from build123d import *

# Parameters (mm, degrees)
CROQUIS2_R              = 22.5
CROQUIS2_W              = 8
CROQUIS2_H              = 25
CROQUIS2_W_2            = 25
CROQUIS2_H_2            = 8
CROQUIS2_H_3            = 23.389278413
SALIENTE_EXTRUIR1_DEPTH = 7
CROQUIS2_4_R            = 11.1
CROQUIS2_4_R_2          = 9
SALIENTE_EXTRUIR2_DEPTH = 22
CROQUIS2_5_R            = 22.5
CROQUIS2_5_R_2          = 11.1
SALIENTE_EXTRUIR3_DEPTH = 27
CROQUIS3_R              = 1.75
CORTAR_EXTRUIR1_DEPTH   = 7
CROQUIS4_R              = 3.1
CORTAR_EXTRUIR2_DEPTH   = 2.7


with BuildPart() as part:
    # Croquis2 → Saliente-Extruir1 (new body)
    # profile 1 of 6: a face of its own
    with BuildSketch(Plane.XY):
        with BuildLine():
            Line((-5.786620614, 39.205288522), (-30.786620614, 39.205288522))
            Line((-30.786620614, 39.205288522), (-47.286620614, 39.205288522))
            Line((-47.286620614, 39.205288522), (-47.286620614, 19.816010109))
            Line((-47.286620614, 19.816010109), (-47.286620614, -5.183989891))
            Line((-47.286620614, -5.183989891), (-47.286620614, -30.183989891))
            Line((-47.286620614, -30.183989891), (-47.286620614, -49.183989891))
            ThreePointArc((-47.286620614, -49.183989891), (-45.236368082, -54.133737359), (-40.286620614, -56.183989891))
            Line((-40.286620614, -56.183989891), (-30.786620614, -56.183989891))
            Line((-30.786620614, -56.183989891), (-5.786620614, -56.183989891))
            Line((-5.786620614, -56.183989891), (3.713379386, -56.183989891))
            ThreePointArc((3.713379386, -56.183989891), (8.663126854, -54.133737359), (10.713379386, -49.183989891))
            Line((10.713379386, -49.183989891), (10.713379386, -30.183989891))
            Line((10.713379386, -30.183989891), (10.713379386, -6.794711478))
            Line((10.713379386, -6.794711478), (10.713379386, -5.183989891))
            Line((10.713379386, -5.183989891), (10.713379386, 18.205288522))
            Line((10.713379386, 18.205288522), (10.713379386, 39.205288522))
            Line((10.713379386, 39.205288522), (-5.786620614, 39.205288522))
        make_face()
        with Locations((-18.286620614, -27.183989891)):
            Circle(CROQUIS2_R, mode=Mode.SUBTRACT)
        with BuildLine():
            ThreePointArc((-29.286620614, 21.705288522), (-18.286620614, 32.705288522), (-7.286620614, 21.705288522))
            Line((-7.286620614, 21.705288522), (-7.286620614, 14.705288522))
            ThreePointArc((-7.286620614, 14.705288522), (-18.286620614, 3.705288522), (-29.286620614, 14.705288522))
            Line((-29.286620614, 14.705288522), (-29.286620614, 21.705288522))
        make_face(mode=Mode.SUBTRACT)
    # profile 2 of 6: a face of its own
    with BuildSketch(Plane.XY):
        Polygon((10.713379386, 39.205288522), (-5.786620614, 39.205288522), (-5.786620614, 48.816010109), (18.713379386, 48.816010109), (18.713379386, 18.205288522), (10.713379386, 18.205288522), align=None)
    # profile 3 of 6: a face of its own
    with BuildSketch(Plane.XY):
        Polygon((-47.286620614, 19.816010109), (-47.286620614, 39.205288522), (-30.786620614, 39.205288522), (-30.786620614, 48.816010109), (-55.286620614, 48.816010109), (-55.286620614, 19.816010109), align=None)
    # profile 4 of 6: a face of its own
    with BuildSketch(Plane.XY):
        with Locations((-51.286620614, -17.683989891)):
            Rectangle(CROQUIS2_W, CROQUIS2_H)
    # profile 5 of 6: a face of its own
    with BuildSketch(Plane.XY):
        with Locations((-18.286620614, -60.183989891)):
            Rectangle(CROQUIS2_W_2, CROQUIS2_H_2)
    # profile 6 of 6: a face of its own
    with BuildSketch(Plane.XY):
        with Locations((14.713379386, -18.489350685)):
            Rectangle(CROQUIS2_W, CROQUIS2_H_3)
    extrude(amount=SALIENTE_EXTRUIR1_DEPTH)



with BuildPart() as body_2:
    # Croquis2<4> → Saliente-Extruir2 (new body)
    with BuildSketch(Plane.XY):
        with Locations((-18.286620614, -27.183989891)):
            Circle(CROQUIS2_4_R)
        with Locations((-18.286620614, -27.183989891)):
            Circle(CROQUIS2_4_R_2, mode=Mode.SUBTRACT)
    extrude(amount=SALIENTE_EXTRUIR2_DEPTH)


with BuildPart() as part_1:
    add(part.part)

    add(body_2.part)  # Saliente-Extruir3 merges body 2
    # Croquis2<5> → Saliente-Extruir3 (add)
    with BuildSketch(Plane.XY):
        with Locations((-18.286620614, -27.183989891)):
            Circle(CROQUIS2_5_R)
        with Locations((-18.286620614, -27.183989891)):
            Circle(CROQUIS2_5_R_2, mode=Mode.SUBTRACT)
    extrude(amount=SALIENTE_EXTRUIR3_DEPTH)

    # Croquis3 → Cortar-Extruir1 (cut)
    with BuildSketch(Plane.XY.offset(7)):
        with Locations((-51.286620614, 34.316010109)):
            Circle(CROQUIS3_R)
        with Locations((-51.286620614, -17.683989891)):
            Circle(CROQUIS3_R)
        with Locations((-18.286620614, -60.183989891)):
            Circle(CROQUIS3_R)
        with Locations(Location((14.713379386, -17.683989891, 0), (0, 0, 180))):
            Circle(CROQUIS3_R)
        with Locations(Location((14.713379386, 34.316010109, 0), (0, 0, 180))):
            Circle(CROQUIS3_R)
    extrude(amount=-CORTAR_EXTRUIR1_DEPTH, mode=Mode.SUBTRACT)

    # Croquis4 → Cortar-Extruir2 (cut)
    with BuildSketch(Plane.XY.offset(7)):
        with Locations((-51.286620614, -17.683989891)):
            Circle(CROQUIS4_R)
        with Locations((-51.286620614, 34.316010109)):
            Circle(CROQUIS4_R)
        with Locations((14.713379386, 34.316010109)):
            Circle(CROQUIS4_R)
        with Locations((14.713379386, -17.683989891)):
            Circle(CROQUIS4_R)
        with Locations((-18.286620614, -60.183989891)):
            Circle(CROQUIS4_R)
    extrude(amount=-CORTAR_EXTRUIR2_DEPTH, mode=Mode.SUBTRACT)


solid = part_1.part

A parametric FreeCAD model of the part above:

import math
import FreeCAD as App
import Part
import Sketcher
from FreeCAD import Vector
Q = App.Units.Quantity

doc = App.newDocument("Part")
params = doc.addObject("Spreadsheet::Sheet", "Params")
for row, (alias, value) in enumerate([
    ("sketch1_diameter", "45 mm"),
    ("sketch1_radius", "7 mm"),
    ("sketch1_radius2", "11 mm"),
    ("sketch1_width", "8 mm"),
    ("sketch1_width2", "25 mm"),
    ("pad1_length", "7 mm"),
    ("sketch2_diameter", "18 mm"),
    ("sketch2_diameter2", "22.2 mm"),
    ("pad2_length", "22 mm"),
    ("sketch3_diameter", "45 mm"),
    ("sketch3_diameter2", "22.2 mm"),
    ("pad3_length", "27 mm"),
    ("sketch4_diameter", "3.5 mm"),
    ("pocket1_length", "7 mm"),
    ("sketch5_diameter", "6.2 mm"),
    ("pocket2_length", "2.7 mm"),
], start=1):
    params.set(f"A{row}", alias)
    params.set(f"B{row}", "=" + value)
    params.setAlias(f"B{row}", alias)

body = doc.addObject("PartDesign::Body", "Body")

sketch1 = body.newObject("Sketcher::SketchObject", "Sketch")
sketch1.AttachmentSupport = (doc.getObject("XY_Plane"), [""])
sketch1.MapMode = "FlatFace"
sketch1.addGeometry([
    Part.LineSegment(Vector(-47, 20, 0), Vector(-47, -5, 0)),
    Part.LineSegment(Vector(-47, -5, 0), Vector(-55, -5, 0)),
    Part.LineSegment(Vector(-55, -5, 0), Vector(-55, -30, 0)),
    Part.LineSegment(Vector(-55, -30, 0), Vector(-47, -30, 0)),
    Part.LineSegment(Vector(-47, -30, 0), Vector(-47, -49, 0)),
    Part.ArcOfCircle(Part.Circle(Vector(-40, -49, 0), Vector(0, 0, 1), 7), math.radians(-180), math.radians(-90)),
    Part.LineSegment(Vector(-40, -56, 0), Vector(-31, -56, 0)),
    Part.LineSegment(Vector(-31, -56, 0), Vector(-31, -64, 0)),
    Part.LineSegment(Vector(-31, -64, 0), Vector(-6, -64, 0)),
    Part.LineSegment(Vector(-6, -64, 0), Vector(-6, -56, 0)),
    Part.LineSegment(Vector(-6, -56, 0), Vector(4, -56, 0)),
    Part.ArcOfCircle(Part.Circle(Vector(4, -49, 0), Vector(0, 0, 1), 7), math.radians(-90), math.radians(0)),
    Part.LineSegment(Vector(11, -49, 0), Vector(11, -30, 0)),
    Part.LineSegment(Vector(11, -30, 0), Vector(19, -30, 0)),
    Part.LineSegment(Vector(19, -30, 0), Vector(19, -7, 0)),
    Part.LineSegment(Vector(19, -7, 0), Vector(11, -7, 0)),
    Part.LineSegment(Vector(11, -7, 0), Vector(11, 18, 0)),
    Part.LineSegment(Vector(11, 18, 0), Vector(19, 18, 0)),
    Part.LineSegment(Vector(19, 18, 0), Vector(19, 49, 0)),
    Part.LineSegment(Vector(19, 49, 0), Vector(-6, 49, 0)),
    Part.LineSegment(Vector(-6, 49, 0), Vector(-6, 39, 0)),
    Part.LineSegment(Vector(-6, 39, 0), Vector(-31, 39, 0)),
    Part.LineSegment(Vector(-31, 39, 0), Vector(-31, 49, 0)),
    Part.LineSegment(Vector(-31, 49, 0), Vector(-55, 49, 0)),
    Part.LineSegment(Vector(-55, 49, 0), Vector(-55, 20, 0)),
    Part.LineSegment(Vector(-55, 20, 0), Vector(-47, 20, 0)),
    Part.Circle(Vector(-18, -27, 0), Vector(0, 0, 1), 22),
    Part.LineSegment(Vector(-29, 15, 0), Vector(-29, 22, 0)),
    Part.ArcOfCircle(Part.Circle(Vector(-18, 22, 0), Vector(0, 0, 1), 11), math.radians(0), math.radians(180)),
    Part.LineSegment(Vector(-7, 22, 0), Vector(-7, 15, 0)),
    Part.ArcOfCircle(Part.Circle(Vector(-18, 15, 0), Vector(0, 0, 1), 11), math.radians(180), math.radians(360)),
], False)
sketch1.addConstraint([
    Sketcher.Constraint("Coincident", 0, 2, 1, 1),
    Sketcher.Constraint("Coincident", 1, 2, 2, 1),
    Sketcher.Constraint("Coincident", 2, 2, 3, 1),
    Sketcher.Constraint("Coincident", 3, 2, 4, 1),
    Sketcher.Constraint("Tangent", 4, 2, 5, 1),
    Sketcher.Constraint("Tangent", 5, 2, 6, 1),
    Sketcher.Constraint("Coincident", 6, 2, 7, 1),
    Sketcher.Constraint("Coincident", 7, 2, 8, 1),
    Sketcher.Constraint("Coincident", 8, 2, 9, 1),
    Sketcher.Constraint("Coincident", 9, 2, 10, 1),
    Sketcher.Constraint("Tangent", 10, 2, 11, 1),
    Sketcher.Constraint("Tangent", 11, 2, 12, 1),
    Sketcher.Constraint("Coincident", 12, 2, 13, 1),
    Sketcher.Constraint("Coincident", 13, 2, 14, 1),
    Sketcher.Constraint("Coincident", 14, 2, 15, 1),
    Sketcher.Constraint("Coincident", 15, 2, 16, 1),
    Sketcher.Constraint("Coincident", 16, 2, 17, 1),
    Sketcher.Constraint("Coincident", 17, 2, 18, 1),
    Sketcher.Constraint("Coincident", 18, 2, 19, 1),
    Sketcher.Constraint("Coincident", 19, 2, 20, 1),
    Sketcher.Constraint("Coincident", 20, 2, 21, 1),
    Sketcher.Constraint("Coincident", 21, 2, 22, 1),
    Sketcher.Constraint("Coincident", 22, 2, 23, 1),
    Sketcher.Constraint("Coincident", 23, 2, 24, 1),
    Sketcher.Constraint("Coincident", 24, 2, 25, 1),
    Sketcher.Constraint("Coincident", 25, 2, 0, 1),
    Sketcher.Constraint("Tangent", 27, 2, 28, 2),
    Sketcher.Constraint("Tangent", 28, 1, 29, 1),
    Sketcher.Constraint("Tangent", 29, 2, 30, 2),
    Sketcher.Constraint("Tangent", 30, 1, 27, 1),
    Sketcher.Constraint("Vertical", 0),
    Sketcher.Constraint("Horizontal", 1),
    Sketcher.Constraint("Vertical", 2),
    Sketcher.Constraint("Horizontal", 3),
    Sketcher.Constraint("Vertical", 4),
    Sketcher.Constraint("Horizontal", 6),
    Sketcher.Constraint("Vertical", 7),
    Sketcher.Constraint("Horizontal", 8),
    Sketcher.Constraint("Vertical", 9),
    Sketcher.Constraint("Horizontal", 10),
    Sketcher.Constraint("Vertical", 12),
    Sketcher.Constraint("Horizontal", 13),
    Sketcher.Constraint("Vertical", 14),
    Sketcher.Constraint("Horizontal", 15),
    Sketcher.Constraint("Vertical", 16),
    Sketcher.Constraint("Horizontal", 17),
    Sketcher.Constraint("Vertical", 18),
    Sketcher.Constraint("Horizontal", 19),
    Sketcher.Constraint("Vertical", 20),
    Sketcher.Constraint("Horizontal", 21),
    Sketcher.Constraint("Vertical", 22),
    Sketcher.Constraint("Horizontal", 23),
    Sketcher.Constraint("Vertical", 24),
    Sketcher.Constraint("Horizontal", 25),
    Sketcher.Constraint("Vertical", 27),
    Sketcher.Constraint("Vertical", 29),
    Sketcher.Constraint("Equal", 5, 11),
    Sketcher.Constraint("Horizontal", 5, 3, 11, 3),
    Sketcher.Constraint("Horizontal", 3, 2, 12, 2),
    Sketcher.Constraint("Horizontal", 19, 2, 22, 2),
    Sketcher.Constraint("Vertical", 26, 3, 28, 3),
    Sketcher.Constraint("Vertical", 0, 2, 3, 2),
    Sketcher.Constraint("Vertical", 12, 2, 15, 2),
    Sketcher.Constraint("Vertical", 14, 2, 17, 2),
    Sketcher.Constraint("Vertical", 9, 2, 19, 2),
    Sketcher.Constraint("Vertical", 7, 2, 21, 2),
    Sketcher.Constraint("Vertical", 2, 2, 23, 2),
    Sketcher.Constraint("Equal", 6, 10),
    Sketcher.Constraint("Equal", 3, 13),
    Sketcher.Constraint("Equal", 21, 0),
    Sketcher.Constraint("Equal", 0, 2),
    Sketcher.Constraint("Equal", 25, 7),
    Sketcher.Constraint("Equal", 2, 16),
    Sketcher.Constraint("Diameter", 26, Q("45 mm")),
    Sketcher.Constraint("Radius", 5, Q("7 mm")),
    Sketcher.Constraint("Radius", 28, Q("11 mm")),
    Sketcher.Constraint("DistanceX", 1, 2, 1, 1, Q("8 mm")),
    Sketcher.Constraint("DistanceX", 8, 1, 8, 2, Q("25 mm")),
    Sketcher.Constraint("DistanceY", 4, 2, 4, 1, Q("19 mm")),
    Sketcher.Constraint("DistanceY", 24, 2, 24, 1, Q("29 mm")),
    Sketcher.Constraint("DistanceY", 27, 1, 27, 2, Q("7 mm")),
    Sketcher.Constraint("DistanceX", 6, 1, 6, 2, Q("9.5 mm")),
    Sketcher.Constraint("DistanceX", 5, 3, 26, 3, Q("22 mm")),
    Sketcher.Constraint("DistanceY", 5, 3, 26, 3, Q("22 mm")),
    Sketcher.Constraint("DistanceY", 16, 2, 20, 2, Q("21 mm")),
    Sketcher.Constraint("DistanceY", 14, 2, 30, 3, Q("21.5 mm")),
    Sketcher.Constraint("DistanceY", 14, 1, 14, 2, Q("23.389278 mm")),
    Sketcher.Constraint("DistanceX", 5, 3, -1, 1, Q("40.286621 mm")),
    Sketcher.Constraint("DistanceY", 5, 3, -1, 1, Q("49.18399 mm")),
])
sketch1.setExpression("Constraints[73]", "Params.sketch1_diameter")
sketch1.setExpression("Constraints[74]", "Params.sketch1_radius")
sketch1.setExpression("Constraints[75]", "Params.sketch1_radius2")
sketch1.setExpression("Constraints[76]", "Params.sketch1_width")
sketch1.setExpression("Constraints[77]", "Params.sketch1_width2")
pad1 = body.newObject("PartDesign::Pad", "Pad")
pad1.Profile = sketch1
pad1.setExpression("Length", "Params.pad1_length")
body2 = doc.addObject("PartDesign::Body", "Body001")

sketch2 = body2.newObject("Sketcher::SketchObject", "Sketch001")
sketch2.AttachmentSupport = (doc.getObject("XY_Plane001"), [""])
sketch2.MapMode = "FlatFace"
sketch2.addGeometry([
    Part.Circle(Vector(-18, -27, 0), Vector(0, 0, 1), 11),
    Part.Circle(Vector(-18, -27, 0), Vector(0, 0, 1), 9),
], False)
sketch2.addConstraint([
    Sketcher.Constraint("Coincident", 1, 3, 0, 3),
    Sketcher.Constraint("Diameter", 1, Q("18 mm")),
    Sketcher.Constraint("Diameter", 0, Q("22.2 mm")),
    Sketcher.Constraint("DistanceX", 0, 3, -1, 1, Q("18.286621 mm")),
    Sketcher.Constraint("DistanceY", 0, 3, -1, 1, Q("27.18399 mm")),
])
sketch2.setExpression("Constraints[1]", "Params.sketch2_diameter")
sketch2.setExpression("Constraints[2]", "Params.sketch2_diameter2")
pad2 = body2.newObject("PartDesign::Pad", "Pad001")
pad2.Profile = sketch2
pad2.setExpression("Length", "Params.pad2_length")
body.AllowCompound = True
doc.recompute()

boolean = body.newObject("PartDesign::Boolean", "Boolean")
boolean.Type = "Fuse"
boolean.addObjects([body2])

sketch3 = body.newObject("Sketcher::SketchObject", "Sketch002")
sketch3.AttachmentSupport = (doc.getObject("XY_Plane"), [""])
sketch3.MapMode = "FlatFace"
sketch3.addGeometry([
    Part.Circle(Vector(-18, -27, 0), Vector(0, 0, 1), 22),
    Part.Circle(Vector(-18, -27, 0), Vector(0, 0, 1), 11),
], False)
sketch3.addConstraint([
    Sketcher.Constraint("Coincident", 1, 3, 0, 3),
    Sketcher.Constraint("Diameter", 0, Q("45 mm")),
    Sketcher.Constraint("Diameter", 1, Q("22.2 mm")),
    Sketcher.Constraint("DistanceX", 0, 3, -1, 1, Q("18.286621 mm")),
    Sketcher.Constraint("DistanceY", 0, 3, -1, 1, Q("27.18399 mm")),
])
sketch3.setExpression("Constraints[1]", "Params.sketch3_diameter")
sketch3.setExpression("Constraints[2]", "Params.sketch3_diameter2")
pad3 = body.newObject("PartDesign::Pad", "Pad002")
pad3.Profile = sketch3
pad3.setExpression("Length", "Params.pad3_length")

sketch4 = body.newObject("Sketcher::SketchObject", "Sketch003")
sketch4.AttachmentSupport = (doc.getObject("XY_Plane"), [""])
sketch4.MapMode = "FlatFace"
sketch4.AttachmentOffset = App.Placement(Vector(0, 0, 7), App.Rotation())
sketch4.addGeometry([
    Part.Circle(Vector(-51.3, 34.3, 0), Vector(0, 0, 1), 1.8),
    Part.Circle(Vector(-51.3, -17.7, 0), Vector(0, 0, 1), 1.8),
    Part.Circle(Vector(-18.3, -60.2, 0), Vector(0, 0, 1), 1.8),
    Part.Circle(Vector(14.7, -17.7, 0), Vector(0, 0, 1), 1.8),
    Part.Circle(Vector(14.7, 34.3, 0), Vector(0, 0, 1), 1.8),
], False)
sketch4.addConstraint([
    Sketcher.Constraint("Equal", 0, 1),
    Sketcher.Constraint("Equal", 1, 2),
    Sketcher.Constraint("Equal", 2, 3),
    Sketcher.Constraint("Equal", 3, 4),
    Sketcher.Constraint("Horizontal", 1, 3, 3, 3),
    Sketcher.Constraint("Horizontal", 0, 3, 4, 3),
    Sketcher.Constraint("Vertical", 0, 3, 1, 3),
    Sketcher.Constraint("Vertical", 3, 3, 4, 3),
    Sketcher.Constraint("Diameter", 0, Q("3.5 mm")),
    Sketcher.Constraint("DistanceY", 1, 3, 0, 3, Q("52 mm")),
    Sketcher.Constraint("DistanceX", 1, 3, 2, 3, Q("33 mm")),
    Sketcher.Constraint("DistanceX", 2, 3, 3, 3, Q("33 mm")),
    Sketcher.Constraint("DistanceY", 2, 3, 1, 3, Q("42.5 mm")),
    Sketcher.Constraint("DistanceX", 0, 3, -1, 1, Q("51.286621 mm")),
    Sketcher.Constraint("DistanceY", -1, 1, 0, 3, Q("34.31601 mm")),
])
sketch4.setExpression("Constraints[8]", "Params.sketch4_diameter")
pocket1 = body.newObject("PartDesign::Pocket", "Pocket")
pocket1.Profile = sketch4
pocket1.setExpression("Length", "Params.pocket1_length")

sketch5 = body.newObject("Sketcher::SketchObject", "Sketch004")
sketch5.AttachmentSupport = (doc.getObject("XY_Plane"), [""])
sketch5.MapMode = "FlatFace"
sketch5.AttachmentOffset = App.Placement(Vector(0, 0, 7), App.Rotation())
sketch5.addGeometry([
    Part.Circle(Vector(-51.3, -17.7, 0), Vector(0, 0, 1), 3.1),
    Part.Circle(Vector(-51.3, 34.3, 0), Vector(0, 0, 1), 3.1),
    Part.Circle(Vector(14.7, 34.3, 0), Vector(0, 0, 1), 3.1),
    Part.Circle(Vector(14.7, -17.7, 0), Vector(0, 0, 1), 3.1),
    Part.Circle(Vector(-18.3, -60.2, 0), Vector(0, 0, 1), 3.1),
], False)
sketch5.addConstraint([
    Sketcher.Constraint("Equal", 0, 1),
    Sketcher.Constraint("Equal", 1, 2),
    Sketcher.Constraint("Equal", 2, 3),
    Sketcher.Constraint("Equal", 3, 4),
    Sketcher.Constraint("Horizontal", 1, 3, 2, 3),
    Sketcher.Constraint("Horizontal", 0, 3, 3, 3),
    Sketcher.Constraint("Vertical", 0, 3, 1, 3),
    Sketcher.Constraint("Vertical", 2, 3, 3, 3),
    Sketcher.Constraint("Diameter", 0, Q("6.2 mm")),
    Sketcher.Constraint("DistanceY", 0, 3, 1, 3, Q("52 mm")),
    Sketcher.Constraint("DistanceX", 1, 3, 2, 3, Q("66 mm")),
    Sketcher.Constraint("DistanceX", 0, 3, 4, 3, Q("33 mm")),
    Sketcher.Constraint("DistanceY", 4, 3, 0, 3, Q("42.5 mm")),
    Sketcher.Constraint("DistanceX", 0, 3, -1, 1, Q("51.286621 mm")),
    Sketcher.Constraint("DistanceY", 0, 3, -1, 1, Q("17.68399 mm")),
])
sketch5.setExpression("Constraints[8]", "Params.sketch5_diameter")
pocket2 = body.newObject("PartDesign::Pocket", "Pocket001")
pocket2.Profile = sketch5
pocket2.setExpression("Length", "Params.pocket2_length")

doc.recompute()
